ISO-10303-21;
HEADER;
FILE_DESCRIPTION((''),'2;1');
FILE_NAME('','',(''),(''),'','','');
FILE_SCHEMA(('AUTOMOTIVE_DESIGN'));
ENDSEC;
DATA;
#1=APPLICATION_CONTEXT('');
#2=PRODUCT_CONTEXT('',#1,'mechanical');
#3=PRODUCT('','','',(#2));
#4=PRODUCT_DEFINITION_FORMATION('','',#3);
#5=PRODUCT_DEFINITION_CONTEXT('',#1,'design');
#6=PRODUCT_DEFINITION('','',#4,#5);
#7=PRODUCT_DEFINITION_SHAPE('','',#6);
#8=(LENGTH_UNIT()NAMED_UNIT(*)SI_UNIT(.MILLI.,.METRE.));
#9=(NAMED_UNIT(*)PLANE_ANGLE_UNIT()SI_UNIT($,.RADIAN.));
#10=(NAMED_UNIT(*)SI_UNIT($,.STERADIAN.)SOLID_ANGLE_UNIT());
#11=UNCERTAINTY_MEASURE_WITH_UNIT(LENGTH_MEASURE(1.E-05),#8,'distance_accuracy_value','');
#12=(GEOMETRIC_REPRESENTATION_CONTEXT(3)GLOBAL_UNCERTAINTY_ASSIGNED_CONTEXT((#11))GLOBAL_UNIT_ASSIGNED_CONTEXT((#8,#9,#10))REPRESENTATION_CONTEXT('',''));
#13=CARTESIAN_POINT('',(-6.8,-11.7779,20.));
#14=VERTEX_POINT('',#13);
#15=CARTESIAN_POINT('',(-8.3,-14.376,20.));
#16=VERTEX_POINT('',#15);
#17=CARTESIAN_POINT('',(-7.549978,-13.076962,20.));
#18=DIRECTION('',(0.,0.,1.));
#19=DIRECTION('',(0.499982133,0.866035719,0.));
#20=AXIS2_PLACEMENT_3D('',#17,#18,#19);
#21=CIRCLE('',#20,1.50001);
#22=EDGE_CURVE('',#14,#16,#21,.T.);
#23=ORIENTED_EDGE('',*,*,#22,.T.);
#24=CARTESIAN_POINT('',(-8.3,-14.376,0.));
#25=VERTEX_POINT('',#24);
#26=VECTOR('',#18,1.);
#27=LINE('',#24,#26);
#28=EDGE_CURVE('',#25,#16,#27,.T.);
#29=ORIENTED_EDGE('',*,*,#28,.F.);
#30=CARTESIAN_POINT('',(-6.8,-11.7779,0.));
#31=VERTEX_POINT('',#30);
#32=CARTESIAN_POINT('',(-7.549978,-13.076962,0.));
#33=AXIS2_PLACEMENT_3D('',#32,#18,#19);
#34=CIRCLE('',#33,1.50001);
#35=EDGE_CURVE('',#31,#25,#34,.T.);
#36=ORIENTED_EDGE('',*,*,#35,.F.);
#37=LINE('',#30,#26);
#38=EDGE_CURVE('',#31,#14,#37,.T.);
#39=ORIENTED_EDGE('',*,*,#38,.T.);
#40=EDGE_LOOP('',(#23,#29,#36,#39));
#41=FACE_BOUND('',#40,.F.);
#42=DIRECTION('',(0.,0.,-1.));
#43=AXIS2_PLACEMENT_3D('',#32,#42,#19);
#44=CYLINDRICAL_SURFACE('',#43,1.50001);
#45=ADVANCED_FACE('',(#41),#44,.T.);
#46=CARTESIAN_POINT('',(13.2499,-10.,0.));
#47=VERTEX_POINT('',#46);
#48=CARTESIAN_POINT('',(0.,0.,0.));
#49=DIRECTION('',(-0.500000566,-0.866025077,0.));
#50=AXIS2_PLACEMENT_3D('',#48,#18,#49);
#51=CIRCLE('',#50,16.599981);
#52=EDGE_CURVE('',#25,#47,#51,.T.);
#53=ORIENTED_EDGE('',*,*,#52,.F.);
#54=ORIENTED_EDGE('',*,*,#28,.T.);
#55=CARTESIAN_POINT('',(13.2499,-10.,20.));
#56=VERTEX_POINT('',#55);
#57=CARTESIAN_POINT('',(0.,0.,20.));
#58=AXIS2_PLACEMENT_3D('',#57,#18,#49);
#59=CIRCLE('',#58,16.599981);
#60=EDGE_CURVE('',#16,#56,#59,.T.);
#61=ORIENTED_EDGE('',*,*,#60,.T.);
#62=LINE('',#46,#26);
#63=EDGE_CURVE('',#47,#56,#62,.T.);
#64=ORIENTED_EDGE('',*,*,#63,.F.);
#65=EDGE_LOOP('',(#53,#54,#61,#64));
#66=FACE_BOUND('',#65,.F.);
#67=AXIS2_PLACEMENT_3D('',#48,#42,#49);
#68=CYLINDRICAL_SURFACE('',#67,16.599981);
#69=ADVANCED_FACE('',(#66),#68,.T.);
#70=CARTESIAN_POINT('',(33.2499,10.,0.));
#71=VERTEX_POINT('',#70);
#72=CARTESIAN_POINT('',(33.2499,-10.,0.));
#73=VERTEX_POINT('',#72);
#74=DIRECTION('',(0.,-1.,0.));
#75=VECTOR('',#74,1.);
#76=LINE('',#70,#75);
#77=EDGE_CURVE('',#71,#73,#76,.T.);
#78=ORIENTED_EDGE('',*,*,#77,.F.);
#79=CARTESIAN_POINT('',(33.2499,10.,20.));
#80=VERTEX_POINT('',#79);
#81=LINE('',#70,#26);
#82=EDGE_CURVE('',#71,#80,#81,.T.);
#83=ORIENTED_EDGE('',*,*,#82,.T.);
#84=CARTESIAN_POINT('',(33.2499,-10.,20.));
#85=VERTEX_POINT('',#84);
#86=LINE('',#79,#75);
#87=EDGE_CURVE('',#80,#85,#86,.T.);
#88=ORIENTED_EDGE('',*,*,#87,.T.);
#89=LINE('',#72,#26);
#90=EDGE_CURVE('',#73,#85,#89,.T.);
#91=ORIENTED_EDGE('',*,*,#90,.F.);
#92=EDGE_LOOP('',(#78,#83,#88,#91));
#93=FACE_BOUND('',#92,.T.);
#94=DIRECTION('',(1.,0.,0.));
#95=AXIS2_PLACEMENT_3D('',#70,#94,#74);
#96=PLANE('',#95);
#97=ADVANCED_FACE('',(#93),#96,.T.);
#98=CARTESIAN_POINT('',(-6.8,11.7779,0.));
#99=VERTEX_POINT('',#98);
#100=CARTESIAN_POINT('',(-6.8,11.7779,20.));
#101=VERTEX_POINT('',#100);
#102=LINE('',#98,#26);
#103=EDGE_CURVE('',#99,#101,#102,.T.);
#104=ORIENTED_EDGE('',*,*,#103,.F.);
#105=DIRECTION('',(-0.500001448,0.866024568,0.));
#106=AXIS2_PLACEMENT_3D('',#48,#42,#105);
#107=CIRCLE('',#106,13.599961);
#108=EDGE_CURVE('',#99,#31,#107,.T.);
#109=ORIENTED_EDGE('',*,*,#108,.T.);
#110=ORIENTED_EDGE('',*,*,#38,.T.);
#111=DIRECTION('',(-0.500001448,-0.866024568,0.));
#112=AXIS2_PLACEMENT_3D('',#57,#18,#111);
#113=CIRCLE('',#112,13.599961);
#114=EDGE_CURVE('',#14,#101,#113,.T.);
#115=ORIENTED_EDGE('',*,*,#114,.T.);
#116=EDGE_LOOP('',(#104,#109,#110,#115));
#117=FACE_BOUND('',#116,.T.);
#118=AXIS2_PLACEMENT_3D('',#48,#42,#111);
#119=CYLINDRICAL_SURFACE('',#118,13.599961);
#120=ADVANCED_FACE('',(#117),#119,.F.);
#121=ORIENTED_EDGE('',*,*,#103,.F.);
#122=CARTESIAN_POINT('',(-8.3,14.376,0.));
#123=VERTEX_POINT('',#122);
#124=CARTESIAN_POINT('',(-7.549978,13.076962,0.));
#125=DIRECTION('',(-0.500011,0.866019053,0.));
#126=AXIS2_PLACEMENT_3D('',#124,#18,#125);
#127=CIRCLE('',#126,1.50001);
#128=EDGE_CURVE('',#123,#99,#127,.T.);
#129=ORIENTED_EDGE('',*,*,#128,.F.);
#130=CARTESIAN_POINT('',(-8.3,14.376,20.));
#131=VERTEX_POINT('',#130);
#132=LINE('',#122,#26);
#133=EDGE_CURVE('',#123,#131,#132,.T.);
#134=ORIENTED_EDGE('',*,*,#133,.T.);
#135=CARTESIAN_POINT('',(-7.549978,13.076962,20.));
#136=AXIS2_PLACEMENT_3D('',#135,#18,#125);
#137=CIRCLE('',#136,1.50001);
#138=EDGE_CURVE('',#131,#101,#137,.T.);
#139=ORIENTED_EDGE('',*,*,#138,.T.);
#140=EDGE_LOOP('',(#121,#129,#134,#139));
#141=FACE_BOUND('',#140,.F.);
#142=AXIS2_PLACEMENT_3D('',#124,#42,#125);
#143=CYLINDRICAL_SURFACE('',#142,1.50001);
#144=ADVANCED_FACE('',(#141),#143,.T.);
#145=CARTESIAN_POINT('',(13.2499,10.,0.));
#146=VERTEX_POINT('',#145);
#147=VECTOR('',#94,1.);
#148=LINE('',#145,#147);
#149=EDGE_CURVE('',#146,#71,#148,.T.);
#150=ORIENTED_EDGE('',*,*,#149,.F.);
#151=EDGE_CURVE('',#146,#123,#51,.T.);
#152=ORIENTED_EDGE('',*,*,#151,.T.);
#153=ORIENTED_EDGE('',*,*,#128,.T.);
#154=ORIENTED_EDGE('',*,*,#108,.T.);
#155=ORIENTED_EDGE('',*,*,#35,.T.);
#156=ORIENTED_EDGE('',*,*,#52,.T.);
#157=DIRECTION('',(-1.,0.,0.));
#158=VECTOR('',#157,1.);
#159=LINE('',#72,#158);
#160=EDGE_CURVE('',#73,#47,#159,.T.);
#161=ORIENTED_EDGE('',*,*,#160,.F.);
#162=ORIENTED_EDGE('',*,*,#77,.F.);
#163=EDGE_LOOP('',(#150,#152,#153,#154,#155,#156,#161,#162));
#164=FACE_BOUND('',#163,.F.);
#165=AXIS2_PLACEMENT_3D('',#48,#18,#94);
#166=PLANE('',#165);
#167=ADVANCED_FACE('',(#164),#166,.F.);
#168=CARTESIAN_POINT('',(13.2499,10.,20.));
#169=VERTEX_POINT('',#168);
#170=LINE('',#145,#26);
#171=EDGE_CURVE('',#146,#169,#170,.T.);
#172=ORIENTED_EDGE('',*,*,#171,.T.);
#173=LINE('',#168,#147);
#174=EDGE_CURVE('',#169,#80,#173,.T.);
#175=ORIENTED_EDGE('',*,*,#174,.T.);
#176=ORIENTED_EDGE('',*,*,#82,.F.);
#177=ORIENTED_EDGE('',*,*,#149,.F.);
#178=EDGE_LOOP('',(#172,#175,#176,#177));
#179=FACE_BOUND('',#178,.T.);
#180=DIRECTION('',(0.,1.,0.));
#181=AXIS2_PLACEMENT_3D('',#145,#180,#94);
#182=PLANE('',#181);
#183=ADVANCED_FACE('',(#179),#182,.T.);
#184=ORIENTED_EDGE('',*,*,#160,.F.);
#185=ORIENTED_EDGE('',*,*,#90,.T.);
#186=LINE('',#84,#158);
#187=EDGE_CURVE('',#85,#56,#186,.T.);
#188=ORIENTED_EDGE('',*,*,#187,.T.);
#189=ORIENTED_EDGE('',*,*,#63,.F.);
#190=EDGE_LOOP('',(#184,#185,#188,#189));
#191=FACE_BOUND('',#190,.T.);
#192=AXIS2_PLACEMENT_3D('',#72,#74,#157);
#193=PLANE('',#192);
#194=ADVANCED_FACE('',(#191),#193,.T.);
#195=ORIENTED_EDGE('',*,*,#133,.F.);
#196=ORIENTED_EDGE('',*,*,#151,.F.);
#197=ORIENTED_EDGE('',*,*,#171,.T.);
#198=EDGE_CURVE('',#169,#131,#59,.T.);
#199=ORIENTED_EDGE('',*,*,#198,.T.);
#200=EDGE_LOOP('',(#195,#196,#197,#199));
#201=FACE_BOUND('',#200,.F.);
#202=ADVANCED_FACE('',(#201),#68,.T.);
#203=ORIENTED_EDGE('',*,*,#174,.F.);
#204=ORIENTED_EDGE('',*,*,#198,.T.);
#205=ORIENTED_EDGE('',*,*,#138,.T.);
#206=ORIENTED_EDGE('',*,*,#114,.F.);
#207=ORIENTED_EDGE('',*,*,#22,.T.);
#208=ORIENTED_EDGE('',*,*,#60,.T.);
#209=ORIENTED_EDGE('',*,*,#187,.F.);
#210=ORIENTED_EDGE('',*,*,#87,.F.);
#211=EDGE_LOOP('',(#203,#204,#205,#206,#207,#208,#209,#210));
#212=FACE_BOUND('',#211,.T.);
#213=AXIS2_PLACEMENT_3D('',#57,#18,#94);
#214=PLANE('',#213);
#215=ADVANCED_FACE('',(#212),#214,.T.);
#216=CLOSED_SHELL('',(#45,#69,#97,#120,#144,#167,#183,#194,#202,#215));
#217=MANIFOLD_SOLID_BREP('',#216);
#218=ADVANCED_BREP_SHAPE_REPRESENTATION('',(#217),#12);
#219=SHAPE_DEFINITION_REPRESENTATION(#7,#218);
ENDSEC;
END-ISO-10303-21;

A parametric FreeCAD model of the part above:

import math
import FreeCAD as App
import Part
import Sketcher
from FreeCAD import Vector

doc = App.newDocument("Part")
body = doc.addObject("PartDesign::Body", "Body")

# Sketch on XY plane
sketch1 = body.newObject("Sketcher::SketchObject", "Sketch")
sketch1.AttachmentSupport = (doc.getObject("XY_Plane"), [""])
sketch1.MapMode = "FlatFace"
sketch1.addGeometry([
    Part.ArcOfCircle(Part.Circle(Vector(-7.5, -13.1, 0), Vector(0, 0, 1), 1.5), math.radians(60), math.radians(240)),  # 0
    Part.ArcOfCircle(Part.Circle(Vector(0, 0, 0), Vector(0, 0, 1), 16.6), math.radians(-120), math.radians(-37)),  # 1
    Part.LineSegment(Vector(13.2, -10, 0), Vector(33.2, -10, 0)),  # 2
    Part.LineSegment(Vector(33.2, -10, 0), Vector(33.2, 10, 0)),  # 3
    Part.LineSegment(Vector(33.2, 10, 0), Vector(13.2, 10, 0)),  # 4
    Part.ArcOfCircle(Part.Circle(Vector(0, 0, 0), Vector(0, 0, 1), 16.6), math.radians(37), math.radians(120)),  # 5
    Part.ArcOfCircle(Part.Circle(Vector(-7.5, 13.1, 0), Vector(0, 0, 1), 1.5), math.radians(120), math.radians(300)),  # 6
    Part.ArcOfCircle(Part.Circle(Vector(0, 0, 0), Vector(0, 0, 1), 13.6), math.radians(-120), math.radians(120)),  # 7
], False)
sketch1.addConstraint([
    Sketcher.Constraint("Tangent", 0, 2, 1, 1),
    Sketcher.Constraint("Coincident", 1, 2, 2, 1),
    Sketcher.Constraint("Coincident", 2, 2, 3, 1),
    Sketcher.Constraint("Coincident", 3, 2, 4, 1),
    Sketcher.Constraint("Coincident", 4, 2, 5, 1),
    Sketcher.Constraint("Tangent", 5, 2, 6, 1),
    Sketcher.Constraint("Tangent", 6, 2, 7, 2),
    Sketcher.Constraint("Tangent", 7, 1, 0, 1),
    Sketcher.Constraint("Horizontal", 2),
    Sketcher.Constraint("Vertical", 3),
    Sketcher.Constraint("Horizontal", 4),
    Sketcher.Constraint("Coincident", 1, 3, -1, 1),
    Sketcher.Constraint("Coincident", 5, 3, -1, 1),
    Sketcher.Constraint("Coincident", 7, 3, -1, 1),
    Sketcher.Constraint("Equal", 1, 5),
    Sketcher.Constraint("Vertical", 0, 3, 6, 3),
    Sketcher.Constraint("Vertical", 1, 2, 4, 2),
    Sketcher.Constraint("Equal", 4, 3),
    Sketcher.Constraint("Radius", 0, 1.5),
    Sketcher.Constraint("Radius", 7, 13.6),
    Sketcher.Constraint("DistanceX", 2, 1, 2, 2, 20.0),
    Sketcher.Constraint("DistanceX", 0, 2, -1, 1, 8.3),
])
pad1 = body.newObject("PartDesign::Pad", "Pad")
pad1.Profile = sketch1
pad1.Length = 20

doc.recompute()
